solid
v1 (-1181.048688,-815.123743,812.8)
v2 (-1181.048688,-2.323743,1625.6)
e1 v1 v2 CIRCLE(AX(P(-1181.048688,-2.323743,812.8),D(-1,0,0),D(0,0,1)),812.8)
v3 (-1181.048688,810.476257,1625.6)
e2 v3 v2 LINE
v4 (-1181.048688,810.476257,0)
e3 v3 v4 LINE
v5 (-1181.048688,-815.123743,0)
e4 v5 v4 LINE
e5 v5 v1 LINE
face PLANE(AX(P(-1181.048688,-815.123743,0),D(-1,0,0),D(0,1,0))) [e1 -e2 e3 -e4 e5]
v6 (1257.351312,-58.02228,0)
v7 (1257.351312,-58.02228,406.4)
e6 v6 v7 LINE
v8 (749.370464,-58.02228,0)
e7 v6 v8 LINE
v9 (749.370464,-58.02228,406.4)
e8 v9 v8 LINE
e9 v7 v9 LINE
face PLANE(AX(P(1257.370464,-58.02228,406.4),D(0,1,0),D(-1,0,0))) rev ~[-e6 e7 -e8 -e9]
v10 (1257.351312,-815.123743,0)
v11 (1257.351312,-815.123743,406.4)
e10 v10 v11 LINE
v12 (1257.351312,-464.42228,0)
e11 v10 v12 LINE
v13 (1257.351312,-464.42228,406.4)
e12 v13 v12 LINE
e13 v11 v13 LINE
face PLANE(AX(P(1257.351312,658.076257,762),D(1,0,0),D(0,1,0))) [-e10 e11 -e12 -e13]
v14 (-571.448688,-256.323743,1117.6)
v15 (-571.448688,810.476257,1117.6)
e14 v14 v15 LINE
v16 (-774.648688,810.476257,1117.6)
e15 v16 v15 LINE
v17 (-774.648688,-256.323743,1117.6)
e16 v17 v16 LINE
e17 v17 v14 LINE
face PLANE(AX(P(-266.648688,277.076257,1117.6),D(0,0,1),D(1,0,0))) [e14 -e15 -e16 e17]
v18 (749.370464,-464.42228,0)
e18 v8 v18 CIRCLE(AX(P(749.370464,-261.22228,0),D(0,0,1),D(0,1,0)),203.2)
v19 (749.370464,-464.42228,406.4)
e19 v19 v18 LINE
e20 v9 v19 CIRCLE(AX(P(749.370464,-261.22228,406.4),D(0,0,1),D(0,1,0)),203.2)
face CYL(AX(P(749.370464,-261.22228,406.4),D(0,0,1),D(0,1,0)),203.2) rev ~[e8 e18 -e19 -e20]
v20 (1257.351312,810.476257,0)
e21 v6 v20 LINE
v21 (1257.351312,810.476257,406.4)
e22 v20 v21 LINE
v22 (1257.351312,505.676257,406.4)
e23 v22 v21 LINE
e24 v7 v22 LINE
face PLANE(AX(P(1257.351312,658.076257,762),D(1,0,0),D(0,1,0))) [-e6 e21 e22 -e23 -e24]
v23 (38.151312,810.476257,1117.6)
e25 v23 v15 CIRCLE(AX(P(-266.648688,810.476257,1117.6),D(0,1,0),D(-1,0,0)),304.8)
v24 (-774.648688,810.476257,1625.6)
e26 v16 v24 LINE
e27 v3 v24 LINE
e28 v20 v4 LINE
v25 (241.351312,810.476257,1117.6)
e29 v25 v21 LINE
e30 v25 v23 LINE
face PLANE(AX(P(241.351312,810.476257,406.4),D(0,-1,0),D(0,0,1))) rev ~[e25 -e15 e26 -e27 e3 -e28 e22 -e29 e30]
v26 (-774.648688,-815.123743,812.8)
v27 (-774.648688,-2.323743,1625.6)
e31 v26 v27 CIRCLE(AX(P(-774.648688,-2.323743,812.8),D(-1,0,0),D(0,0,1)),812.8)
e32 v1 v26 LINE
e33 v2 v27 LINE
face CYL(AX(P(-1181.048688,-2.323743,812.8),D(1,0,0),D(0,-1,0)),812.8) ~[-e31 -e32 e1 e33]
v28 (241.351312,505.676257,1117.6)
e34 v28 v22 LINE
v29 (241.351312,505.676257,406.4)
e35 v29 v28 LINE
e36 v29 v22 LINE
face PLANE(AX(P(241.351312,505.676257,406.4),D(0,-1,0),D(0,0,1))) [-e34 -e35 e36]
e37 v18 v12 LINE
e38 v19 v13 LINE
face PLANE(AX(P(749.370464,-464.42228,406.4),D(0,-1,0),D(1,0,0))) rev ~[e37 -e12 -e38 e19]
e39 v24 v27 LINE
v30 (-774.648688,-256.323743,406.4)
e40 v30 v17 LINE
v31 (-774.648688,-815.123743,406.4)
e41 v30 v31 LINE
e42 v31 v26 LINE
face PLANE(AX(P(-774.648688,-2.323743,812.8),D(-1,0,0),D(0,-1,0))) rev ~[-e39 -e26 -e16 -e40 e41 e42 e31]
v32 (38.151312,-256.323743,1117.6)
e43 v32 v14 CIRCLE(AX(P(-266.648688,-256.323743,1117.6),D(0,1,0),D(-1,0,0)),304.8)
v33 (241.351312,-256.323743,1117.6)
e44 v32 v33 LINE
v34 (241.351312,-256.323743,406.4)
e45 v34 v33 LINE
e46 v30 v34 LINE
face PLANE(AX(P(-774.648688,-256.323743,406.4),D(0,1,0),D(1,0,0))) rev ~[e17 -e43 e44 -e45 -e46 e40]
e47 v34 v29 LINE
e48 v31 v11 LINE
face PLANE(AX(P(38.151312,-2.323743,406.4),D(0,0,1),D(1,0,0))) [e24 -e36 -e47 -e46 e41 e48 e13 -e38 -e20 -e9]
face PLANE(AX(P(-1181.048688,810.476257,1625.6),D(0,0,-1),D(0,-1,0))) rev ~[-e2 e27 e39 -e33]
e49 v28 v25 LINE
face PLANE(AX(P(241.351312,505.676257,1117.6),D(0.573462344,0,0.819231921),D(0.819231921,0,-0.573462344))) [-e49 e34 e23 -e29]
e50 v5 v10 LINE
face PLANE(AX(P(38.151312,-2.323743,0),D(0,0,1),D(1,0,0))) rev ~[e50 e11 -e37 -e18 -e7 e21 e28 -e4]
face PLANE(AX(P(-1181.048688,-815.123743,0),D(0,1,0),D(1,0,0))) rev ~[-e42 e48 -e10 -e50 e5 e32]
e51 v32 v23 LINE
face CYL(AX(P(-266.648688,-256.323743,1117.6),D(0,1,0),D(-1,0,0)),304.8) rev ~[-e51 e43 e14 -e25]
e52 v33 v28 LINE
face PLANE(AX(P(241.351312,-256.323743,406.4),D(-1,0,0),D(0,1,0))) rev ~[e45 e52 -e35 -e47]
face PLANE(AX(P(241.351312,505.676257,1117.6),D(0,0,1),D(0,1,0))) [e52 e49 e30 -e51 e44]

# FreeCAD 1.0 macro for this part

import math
import FreeCAD as App
import Part
import Sketcher
Q = App.Units.Quantity


def edges_at(feature, points):
    """Names of the edges that pass closest to the given points."""
    edges = feature.Shape.Edges
    near = lambda p: min(range(len(edges)), key=lambda i: edges[i].distToShape(Part.Vertex(*p))[0])
    return sorted({f"Edge{near(p) + 1}" for p in points})


def add_polygon(sketch, points):
    """Adds a closed chain of lines whose ends are joined by coincident constraints."""
    first, n = sketch.GeometryCount, len(points)
    for a, b in zip(points, points[1:] + points[:1]):
        sketch.addGeometry(Part.LineSegment(App.Vector(*a, 0), App.Vector(*b, 0)), False)
    for i in range(n):
        sketch.addConstraint(Sketcher.Constraint("Coincident", first + i, 2, first + (i + 1) % n, 1))

doc = App.newDocument("Part")
body = doc.addObject("PartDesign::Body", "Body")

# Sketch on XY plane
sketch1 = body.newObject("Sketcher::SketchObject", "Sketch")
sketch1.AttachmentSupport = (doc.getObject("XY_Plane"), [""])
sketch1.MapMode = "FlatFace"
add_polygon(sketch1, [(-1181.048688, 810.476257), (-1181.048688, -815.123743), (1257.351312, -815.123743), (1257.351312, 810.476257)])  # lines 0-3
sketch1.addConstraint([
    Sketcher.Constraint("Vertical", 0),
    Sketcher.Constraint("Horizontal", 1),
    Sketcher.Constraint("Vertical", 2),
    Sketcher.Constraint("Horizontal", 3),
    Sketcher.Constraint("DistanceX", 1, 1, 1, 2, Q("96 in")),
    Sketcher.Constraint("DistanceY", 0, 2, 0, 1, Q("64 in")),
    Sketcher.Constraint("DistanceX", 0, 2, -1, 1, Q("1181.048688 mm")),
    Sketcher.Constraint("DistanceY", 0, 2, -1, 1, Q("815.123743 mm")),
])
pad1 = body.newObject("PartDesign::Pad", "Pad")
pad1.Profile = sketch1
pad1.Length = Q("16 in")

# Sketch on YZ plane
sketch2 = body.newObject("Sketcher::SketchObject", "Sketch001")
sketch2.AttachmentSupport = (doc.getObject("YZ_Plane"), [""])
sketch2.MapMode = "FlatFace"
sketch2.AttachmentOffset = App.Placement(App.Vector(0, 0, -1181.048688), App.Rotation())
add_polygon(sketch2, [(810.476257, 1625.6), (810.476257, 0), (-815.123743, 0), (-815.123743, 1625.6)])  # lines 0-3
sketch2.addConstraint([
    Sketcher.Constraint("Vertical", 0),
    Sketcher.Constraint("Horizontal", 1),
    Sketcher.Constraint("Vertical", 2),
    Sketcher.Constraint("Horizontal", 3),
    Sketcher.Constraint("PointOnObject", 0, 2, -1),
    Sketcher.Constraint("Equal", 3, 0),
    Sketcher.Constraint("DistanceX", 1, 2, 1, 1, Q("64 in")),
    Sketcher.Constraint("DistanceX", -1, 1, 0, 2, Q("810.476257 mm")),
])
pad2 = body.newObject("PartDesign::Pad", "Pad001")
pad2.Profile = sketch2
pad2.Length = Q("16 in")

# Sketch on XY plane
sketch3 = body.newObject("Sketcher::SketchObject", "Sketch002")
sketch3.AttachmentSupport = (doc.getObject("XY_Plane"), [""])
sketch3.MapMode = "FlatFace"
sketch3.AttachmentOffset = App.Placement(App.Vector(0, 0, 16 * 25.4), App.Rotation())
add_polygon(sketch3, [(-774.648688, 810.476257), (-774.648688, -256.323743), (241.351312, -256.323743), (241.351312, 810.476257)])  # lines 0-3
sketch3.addConstraint([
    Sketcher.Constraint("Vertical", 0),
    Sketcher.Constraint("Horizontal", 1),
    Sketcher.Constraint("Vertical", 2),
    Sketcher.Constraint("Horizontal", 3),
    Sketcher.Constraint("DistanceX", 1, 1, 1, 2, Q("40 in")),
    Sketcher.Constraint("DistanceY", 0, 2, 0, 1, Q("42 in")),
    Sketcher.Constraint("DistanceX", 0, 2, -1, 1, Q("774.648688 mm")),
    Sketcher.Constraint("DistanceY", 0, 2, -1, 1, Q("256.323743 mm")),
])
pad3 = body.newObject("PartDesign::Pad", "Pad002")
pad3.Profile = sketch3
pad3.Length = Q("28 in")

# Sketch on XZ plane
sketch4 = body.newObject("Sketcher::SketchObject", "Sketch003")
sketch4.AttachmentSupport = (doc.getObject("XZ_Plane"), [""])
sketch4.MapMode = "FlatFace"
sketch4.AttachmentOffset = App.Placement(App.Vector(0, 0, 256.323743), App.Rotation())
sketch4.addGeometry([
    Part.ArcOfCircle(Part.Circle(App.Vector(-266.648688, 1117.6, 0), App.Vector(0, 0, 1), 304.8), math.radians(180), math.radians(360)),
    Part.LineSegment(App.Vector(38.151312, 1117.6, 0), App.Vector(-571.448688, 1117.6, 0)),
], False)
sketch4.addConstraint([
    Sketcher.Constraint("Coincident", 0, 1, 1, 2),
    Sketcher.Constraint("Coincident", 1, 1, 0, 2),
    Sketcher.Constraint("Horizontal", 1),
    Sketcher.Constraint("Radius", 0, Q("12 in")),
    Sketcher.Constraint("DistanceY", -1, 1, 0, 3, Q("44 in")),
    Sketcher.Constraint("DistanceY", -1, 1, 0, 1, Q("44 in")),
    Sketcher.Constraint("DistanceX", 0, 3, -1, 1, Q("266.648688 mm")),
])

# Sketch on XY plane
sketch5 = body.newObject("Sketcher::SketchObject", "Sketch004")
sketch5.AttachmentSupport = (doc.getObject("XY_Plane"), [""])
sketch5.MapMode = "FlatFace"
sketch5.AttachmentOffset = App.Placement(App.Vector(0, 0, 44 * 25.4), App.Rotation())
sketch5.addGeometry(Part.LineSegment(App.Vector(241.351312, -256.323743, 0), App.Vector(241.351312, 810.476257, 0)), False)
sketch5.addConstraint([
    Sketcher.Constraint("Vertical", 0),
    Sketcher.Constraint("DistanceY", 0, 1, 0, 2, Q("42 in")),
    Sketcher.Constraint("DistanceX", -1, 1, 0, 1, Q("241.351312 mm")),
    Sketcher.Constraint("DistanceY", 0, 1, -1, 1, Q("256.323743 mm")),
])
doc.recompute()

subtractivepipe = body.newObject("PartDesign::SubtractivePipe", "SubtractivePipe")
subtractivepipe.Profile = sketch4
subtractivepipe.Spine = (sketch5, ["Edge1"])
doc.recompute()

fillet = body.newObject("PartDesign::Fillet", "Fillet")
fillet.Base = (subtractivepipe, edges_at(subtractivepipe, [(-977.849, -815.124, 1625.6)]))
fillet.Radius = Q("32 in")

# Sketch on YZ plane
sketch6 = body.newObject("Sketcher::SketchObject", "Sketch005")
sketch6.AttachmentSupport = (doc.getObject("YZ_Plane"), [""])
sketch6.MapMode = "FlatFace"
sketch6.AttachmentOffset = App.Placement(App.Vector(0, 0, 241.351312), App.Rotation())
add_polygon(sketch6, [(505.676257, 1117.6), (505.676257, 406.4), (810.476257, 406.4), (810.476257, 1117.6)])  # lines 0-3
sketch6.addConstraint([
    Sketcher.Constraint("Vertical", 0),
    Sketcher.Constraint("Horizontal", 1),
    Sketcher.Constraint("Vertical", 2),
    Sketcher.Constraint("Horizontal", 3),
    Sketcher.Constraint("DistanceX", 1, 1, 1, 2, Q("12 in")),
    Sketcher.Constraint("DistanceY", 0, 2, 0, 1, Q("28 in")),
    Sketcher.Constraint("DistanceY", -1, 1, 0, 2, Q("16 in")),
    Sketcher.Constraint("DistanceX", -1, 1, 0, 2, Q("505.676257 mm")),
])
pad4 = body.newObject("PartDesign::Pad", "Pad003")
pad4.Profile = sketch6
pad4.Length = Q("40 in")

# Sketch on XZ plane
sketch7 = body.newObject("Sketcher::SketchObject", "Sketch006")
sketch7.AttachmentSupport = (doc.getObject("XZ_Plane"), [""])
sketch7.MapMode = "FlatFace"
sketch7.AttachmentOffset = App.Placement(App.Vector(0, 0, -505.676257), App.Rotation())
add_polygon(sketch7, [(1257.351312, 1117.6), (241.351312, 1117.6), (1257.351312, 406.4)])  # lines 0-2
sketch7.addConstraint([
    Sketcher.Constraint("Horizontal", 0),
    Sketcher.Constraint("Vertical", 2),
    Sketcher.Constraint("DistanceX", 0, 2, 0, 1, Q("40 in")),
    Sketcher.Constraint("DistanceY", 2, 1, 2, 2, Q("28 in")),
    Sketcher.Constraint("DistanceY", -1, 1, 0, 2, Q("44 in")),
    Sketcher.Constraint("DistanceX", -1, 1, 0, 2, Q("241.351312 mm")),
])

# Sketch on XY plane
sketch8 = body.newObject("Sketcher::SketchObject", "Sketch007")
sketch8.AttachmentSupport = (doc.getObject("XY_Plane"), [""])
sketch8.MapMode = "FlatFace"
sketch8.AttachmentOffset = App.Placement(App.Vector(0, 0, 44 * 25.4), App.Rotation())
sketch8.addGeometry(Part.LineSegment(App.Vector(1257.351312, 505.676257, 0), App.Vector(1257.351312, 810.476257, 0)), False)
sketch8.addConstraint([
    Sketcher.Constraint("Vertical", 0),
    Sketcher.Constraint("DistanceY", 0, 1, 0, 2, Q("12 in")),
    Sketcher.Constraint("DistanceX", -1, 1, 0, 1, Q("1257.351312 mm")),
    Sketcher.Constraint("DistanceY", -1, 1, 0, 1, Q("505.676257 mm")),
])
doc.recompute()

subtractivepipe2 = body.newObject("PartDesign::SubtractivePipe", "SubtractivePipe001")
subtractivepipe2.Profile = sketch7
subtractivepipe2.Spine = (sketch8, ["Edge1"])

# Sketch on XY plane
sketch9 = body.newObject("Sketcher::SketchObject", "Sketch008")
sketch9.AttachmentSupport = (doc.getObject("XY_Plane"), [""])
sketch9.MapMode = "FlatFace"
sketch9.AttachmentOffset = App.Placement(App.Vector(0, 0, 16 * 25.4), App.Rotation())
sketch9.addGeometry([
    Part.LineSegment(App.Vector(749.370464, -464.42228, 0), App.Vector(1257.370464, -464.42228, 0)),
    Part.LineSegment(App.Vector(1257.370464, -464.42228, 0), App.Vector(1257.370464, -58.02228, 0)),
    Part.LineSegment(App.Vector(1257.370464, -58.02228, 0), App.Vector(749.370464, -58.02228, 0)),
    Part.ArcOfCircle(Part.Circle(App.Vector(749.370464, -261.22228, 0), App.Vector(0, 0, 1), 203.2), math.radians(90), math.radians(270)),
], False)
sketch9.addConstraint([
    Sketcher.Constraint("Coincident", 0, 2, 1, 1),
    Sketcher.Constraint("Coincident", 1, 2, 2, 1),
    Sketcher.Constraint("Tangent", 2, 2, 3, 1),
    Sketcher.Constraint("Tangent", 3, 2, 0, 1),
    Sketcher.Constraint("Horizontal", 0),
    Sketcher.Constraint("Vertical", 1),
    Sketcher.Constraint("Horizontal", 2),
    Sketcher.Constraint("Radius", 3, Q("8 in")),
    Sketcher.Constraint("DistanceX", 0, 1, 0, 2, Q("20 in")),
    Sketcher.Constraint("DistanceY", 3, 3, -1, 1, Q("261.22228 mm")),
    Sketcher.Constraint("DistanceX", -1, 1, 3, 3, Q("749.370464 mm")),
])
pocket1 = body.newObject("PartDesign::Pocket", "Pocket")
pocket1.Profile = sketch9
pocket1.Length = Q("22.6 in")

doc.recompute()
